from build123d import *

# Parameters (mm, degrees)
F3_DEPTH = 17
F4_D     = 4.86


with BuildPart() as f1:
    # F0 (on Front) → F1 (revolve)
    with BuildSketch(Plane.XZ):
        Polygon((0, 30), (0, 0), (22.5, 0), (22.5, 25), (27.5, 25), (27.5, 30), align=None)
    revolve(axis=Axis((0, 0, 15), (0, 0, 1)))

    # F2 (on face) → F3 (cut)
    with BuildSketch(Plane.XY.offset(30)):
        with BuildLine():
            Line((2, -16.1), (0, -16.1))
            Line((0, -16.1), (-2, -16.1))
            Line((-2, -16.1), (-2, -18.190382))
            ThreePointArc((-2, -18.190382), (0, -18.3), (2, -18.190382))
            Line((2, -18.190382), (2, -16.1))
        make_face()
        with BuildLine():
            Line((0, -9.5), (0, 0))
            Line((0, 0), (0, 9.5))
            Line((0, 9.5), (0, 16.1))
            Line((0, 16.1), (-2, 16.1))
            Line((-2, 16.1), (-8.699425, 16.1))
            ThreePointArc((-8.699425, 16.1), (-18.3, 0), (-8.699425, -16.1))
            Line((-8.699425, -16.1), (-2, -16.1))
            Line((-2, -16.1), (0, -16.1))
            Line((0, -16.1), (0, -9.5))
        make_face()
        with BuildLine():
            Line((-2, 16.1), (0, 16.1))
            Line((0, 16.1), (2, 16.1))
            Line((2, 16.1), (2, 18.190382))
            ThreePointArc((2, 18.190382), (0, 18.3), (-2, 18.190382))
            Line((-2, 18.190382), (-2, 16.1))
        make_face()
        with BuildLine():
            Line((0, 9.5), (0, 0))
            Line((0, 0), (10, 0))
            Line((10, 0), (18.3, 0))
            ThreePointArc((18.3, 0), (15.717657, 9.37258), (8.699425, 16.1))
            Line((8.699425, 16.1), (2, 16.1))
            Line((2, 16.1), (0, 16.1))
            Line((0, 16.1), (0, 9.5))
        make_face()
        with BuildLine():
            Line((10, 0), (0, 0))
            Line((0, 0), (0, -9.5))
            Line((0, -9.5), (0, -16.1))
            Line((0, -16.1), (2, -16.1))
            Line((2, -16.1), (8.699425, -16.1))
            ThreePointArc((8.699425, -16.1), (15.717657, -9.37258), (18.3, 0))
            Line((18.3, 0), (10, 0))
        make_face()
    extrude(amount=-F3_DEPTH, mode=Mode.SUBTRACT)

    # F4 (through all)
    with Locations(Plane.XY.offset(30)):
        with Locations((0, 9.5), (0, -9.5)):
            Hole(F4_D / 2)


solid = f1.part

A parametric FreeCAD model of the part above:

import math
import FreeCAD as App
import Part
import Sketcher

V = App.Vector

doc = App.newDocument("Part")
body = doc.addObject("PartDesign::Body", "Body")

# Sketch on XZ plane
sketch1 = body.newObject("Sketcher::SketchObject", "Sketch")
sketch1.AttachmentSupport = (doc.getObject("XZ_Plane"), [""])
sketch1.MapMode = "FlatFace"
sketch1.addGeometry(Part.LineSegment(V(0, 30, 0), V(0, 0, 0)), False)
sketch1.addGeometry(Part.LineSegment(V(0, 0, 0), V(22, 0, 0)), False)
sketch1.addGeometry(Part.LineSegment(V(22, 0, 0), V(22, 25, 0)), False)
sketch1.addGeometry(Part.LineSegment(V(22, 25, 0), V(28, 25, 0)), False)
sketch1.addGeometry(Part.LineSegment(V(28, 25, 0), V(28, 30, 0)), False)
sketch1.addGeometry(Part.LineSegment(V(28, 30, 0), V(0, 30, 0)), False)
sketch1.addConstraint(Sketcher.Constraint("Coincident", 0, 2, 1, 1))
sketch1.addConstraint(Sketcher.Constraint("Coincident", 1, 2, 2, 1))
sketch1.addConstraint(Sketcher.Constraint("Coincident", 2, 2, 3, 1))
sketch1.addConstraint(Sketcher.Constraint("Coincident", 3, 2, 4, 1))
sketch1.addConstraint(Sketcher.Constraint("Coincident", 4, 2, 5, 1))
sketch1.addConstraint(Sketcher.Constraint("Coincident", 5, 2, 0, 1))
sketch1.addConstraint(Sketcher.Constraint("Vertical", 0))
sketch1.addConstraint(Sketcher.Constraint("Horizontal", 1))
sketch1.addConstraint(Sketcher.Constraint("Vertical", 2))
sketch1.addConstraint(Sketcher.Constraint("Horizontal", 3))
sketch1.addConstraint(Sketcher.Constraint("Vertical", 4))
sketch1.addConstraint(Sketcher.Constraint("Horizontal", 5))
sketch1.addConstraint(Sketcher.Constraint("Coincident", 0, 2, -1, 1))
sketch1.addConstraint(Sketcher.Constraint("Equal", 3, 4))
sketch1.addConstraint(Sketcher.Constraint("DistanceX", 3, 1, 3, 2, 5.0))
sketch1.addConstraint(Sketcher.Constraint("DistanceY", 0, 2, 0, 1, 30.0))
sketch1.addConstraint(Sketcher.Constraint("DistanceX", 1, 1, 1, 2, 22.5))
revolution = body.newObject("PartDesign::Revolution", "Revolution")
revolution.Profile = sketch1
revolution.ReferenceAxis = (sketch1, ["V_Axis"])
revolution.Angle = 360

# Sketch on XY plane
sketch2 = body.newObject("Sketcher::SketchObject", "Sketch001")
sketch2.AttachmentSupport = (doc.getObject("XY_Plane"), [""])
sketch2.MapMode = "FlatFace"
sketch2.AttachmentOffset = App.Placement(V(0, 0, 30), App.Rotation())
sketch2.addGeometry(Part.ArcOfCircle(Part.Circle(V(0, 0, 0), V(0, 0, 1), 18.3), math.radians(0), math.radians(62)), False)
sketch2.addGeometry(Part.LineSegment(V(8.7, 16.1, 0), V(2, 16.1, 0)), False)
sketch2.addGeometry(Part.LineSegment(V(2, 16.1, 0), V(2, 18.2, 0)), False)
sketch2.addGeometry(Part.ArcOfCircle(Part.Circle(V(0, 0, 0), V(0, 0, 1), 18.3), math.radians(83.73), math.radians(96.27)), False)
sketch2.addGeometry(Part.LineSegment(V(-2, 18.2, 0), V(-2, 16.1, 0)), False)
sketch2.addGeometry(Part.LineSegment(V(-2, 16.1, 0), V(-8.7, 16.1, 0)), False)
sketch2.addGeometry(Part.ArcOfCircle(Part.Circle(V(0, 0, 0), V(0, 0, 1), 18.3), math.radians(118), math.radians(242)), False)
sketch2.addGeometry(Part.LineSegment(V(-8.7, -16.1, 0), V(-2, -16.1, 0)), False)
sketch2.addGeometry(Part.LineSegment(V(-2, -16.1, 0), V(-2, -18.2, 0)), False)
sketch2.addGeometry(Part.ArcOfCircle(Part.Circle(V(0, 0, 0), V(0, 0, 1), 18.3), math.radians(-96.27), math.radians(-83.73)), False)
sketch2.addGeometry(Part.LineSegment(V(2, -18.2, 0), V(2, -16.1, 0)), False)
sketch2.addGeometry(Part.LineSegment(V(2, -16.1, 0), V(8.7, -16.1, 0)), False)
sketch2.addGeometry(Part.ArcOfCircle(Part.Circle(V(0, 0, 0), V(0, 0, 1), 18.3), math.radians(-62), math.radians(0)), False)
sketch2.addConstraint(Sketcher.Constraint("Coincident", 0, 2, 1, 1))
sketch2.addConstraint(Sketcher.Constraint("Coincident", 1, 2, 2, 1))
sketch2.addConstraint(Sketcher.Constraint("Coincident", 2, 2, 3, 1))
sketch2.addConstraint(Sketcher.Constraint("Coincident", 3, 2, 4, 1))
sketch2.addConstraint(Sketcher.Constraint("Coincident", 4, 2, 5, 1))
sketch2.addConstraint(Sketcher.Constraint("Coincident", 5, 2, 6, 1))
sketch2.addConstraint(Sketcher.Constraint("Coincident", 6, 2, 7, 1))
sketch2.addConstraint(Sketcher.Constraint("Coincident", 7, 2, 8, 1))
sketch2.addConstraint(Sketcher.Constraint("Coincident", 8, 2, 9, 1))
sketch2.addConstraint(Sketcher.Constraint("Coincident", 9, 2, 10, 1))
sketch2.addConstraint(Sketcher.Constraint("Coincident", 10, 2, 11, 1))
sketch2.addConstraint(Sketcher.Constraint("Coincident", 11, 2, 12, 1))
sketch2.addConstraint(Sketcher.Constraint("Tangent", 12, 2, 0, 1))
sketch2.addConstraint(Sketcher.Constraint("Horizontal", 1))
sketch2.addConstraint(Sketcher.Constraint("Vertical", 2))
sketch2.addConstraint(Sketcher.Constraint("Vertical", 4))
sketch2.addConstraint(Sketcher.Constraint("Horizontal", 5))
sketch2.addConstraint(Sketcher.Constraint("Horizontal", 7))
sketch2.addConstraint(Sketcher.Constraint("Vertical", 8))
sketch2.addConstraint(Sketcher.Constraint("Vertical", 10))
sketch2.addConstraint(Sketcher.Constraint("Horizontal", 11))
sketch2.addConstraint(Sketcher.Constraint("Coincident", 0, 3, -1, 1))
sketch2.addConstraint(Sketcher.Constraint("Coincident", 6, 3, -1, 1))
sketch2.addConstraint(Sketcher.Constraint("Equal", 0, 6))
sketch2.addConstraint(Sketcher.Constraint("Equal", 3, 9))
sketch2.addConstraint(Sketcher.Constraint("Equal", 6, 12))
sketch2.addConstraint(Sketcher.Constraint("Symmetric", 3, 3, 9, 3, -1, 1))
sketch2.addConstraint(Sketcher.Constraint("Symmetric", 1, 2, 7, 2, -1, 1))
sketch2.addConstraint(Sketcher.Constraint("Symmetric", 4, 2, 10, 2, -1, 1))
sketch2.addConstraint(Sketcher.Constraint("Symmetric", 2, 2, 3, 2, -2))
sketch2.addConstraint(Sketcher.Constraint("PointOnObject", 12, 2, -1))
sketch2.addConstraint(Sketcher.Constraint("Horizontal", 1, 2, 4, 2))
sketch2.addConstraint(Sketcher.Constraint("Radius", 0, 18.3))
sketch2.addConstraint(Sketcher.Constraint("DistanceX", -1, 1, 1, 2, 2.0))
sketch2.addConstraint(Sketcher.Constraint("DistanceY", -1, 1, 0, 2, 16.1))
sketch2.addConstraint(Sketcher.Constraint("Radius", 3, 18.299988))
sketch2.addConstraint(Sketcher.Constraint("DistanceY", 2, 1, 2, 2, 2.090382))
pocket1 = body.newObject("PartDesign::Pocket", "Pocket")
pocket1.Profile = sketch2
pocket1.Length = 17

# Sketch on XY plane
sketch3 = body.newObject("Sketcher::SketchObject", "Sketch002")
sketch3.AttachmentSupport = (doc.getObject("XY_Plane"), [""])
sketch3.MapMode = "FlatFace"
sketch3.AttachmentOffset = App.Placement(V(0, 0, 30), App.Rotation())
sketch3.addGeometry(Part.Circle(V(0, 9.5, 0), V(0, 0, 1), 2.4), False)
sketch3.addGeometry(Part.Circle(V(0, -9.5, 0), V(0, 0, 1), 2.4), False)
sketch3.addConstraint(Sketcher.Constraint("Equal", 0, 1))
sketch3.addConstraint(Sketcher.Constraint("Symmetric", 0, 3, 1, 3, -1, 1))
sketch3.addConstraint(Sketcher.Constraint("PointOnObject", 0, 3, -2))
sketch3.addConstraint(Sketcher.Constraint("Diameter", 0, 4.86))
sketch3.addConstraint(Sketcher.Constraint("DistanceY", 1, 3, 0, 3, 19.0))
doc.recompute()
hole = body.newObject("PartDesign::Hole", "Hole")
hole.Profile = sketch3
hole.ThreadType = "None"
hole.Diameter = 4.86
hole.DepthType = "ThroughAll"

doc.recompute()
